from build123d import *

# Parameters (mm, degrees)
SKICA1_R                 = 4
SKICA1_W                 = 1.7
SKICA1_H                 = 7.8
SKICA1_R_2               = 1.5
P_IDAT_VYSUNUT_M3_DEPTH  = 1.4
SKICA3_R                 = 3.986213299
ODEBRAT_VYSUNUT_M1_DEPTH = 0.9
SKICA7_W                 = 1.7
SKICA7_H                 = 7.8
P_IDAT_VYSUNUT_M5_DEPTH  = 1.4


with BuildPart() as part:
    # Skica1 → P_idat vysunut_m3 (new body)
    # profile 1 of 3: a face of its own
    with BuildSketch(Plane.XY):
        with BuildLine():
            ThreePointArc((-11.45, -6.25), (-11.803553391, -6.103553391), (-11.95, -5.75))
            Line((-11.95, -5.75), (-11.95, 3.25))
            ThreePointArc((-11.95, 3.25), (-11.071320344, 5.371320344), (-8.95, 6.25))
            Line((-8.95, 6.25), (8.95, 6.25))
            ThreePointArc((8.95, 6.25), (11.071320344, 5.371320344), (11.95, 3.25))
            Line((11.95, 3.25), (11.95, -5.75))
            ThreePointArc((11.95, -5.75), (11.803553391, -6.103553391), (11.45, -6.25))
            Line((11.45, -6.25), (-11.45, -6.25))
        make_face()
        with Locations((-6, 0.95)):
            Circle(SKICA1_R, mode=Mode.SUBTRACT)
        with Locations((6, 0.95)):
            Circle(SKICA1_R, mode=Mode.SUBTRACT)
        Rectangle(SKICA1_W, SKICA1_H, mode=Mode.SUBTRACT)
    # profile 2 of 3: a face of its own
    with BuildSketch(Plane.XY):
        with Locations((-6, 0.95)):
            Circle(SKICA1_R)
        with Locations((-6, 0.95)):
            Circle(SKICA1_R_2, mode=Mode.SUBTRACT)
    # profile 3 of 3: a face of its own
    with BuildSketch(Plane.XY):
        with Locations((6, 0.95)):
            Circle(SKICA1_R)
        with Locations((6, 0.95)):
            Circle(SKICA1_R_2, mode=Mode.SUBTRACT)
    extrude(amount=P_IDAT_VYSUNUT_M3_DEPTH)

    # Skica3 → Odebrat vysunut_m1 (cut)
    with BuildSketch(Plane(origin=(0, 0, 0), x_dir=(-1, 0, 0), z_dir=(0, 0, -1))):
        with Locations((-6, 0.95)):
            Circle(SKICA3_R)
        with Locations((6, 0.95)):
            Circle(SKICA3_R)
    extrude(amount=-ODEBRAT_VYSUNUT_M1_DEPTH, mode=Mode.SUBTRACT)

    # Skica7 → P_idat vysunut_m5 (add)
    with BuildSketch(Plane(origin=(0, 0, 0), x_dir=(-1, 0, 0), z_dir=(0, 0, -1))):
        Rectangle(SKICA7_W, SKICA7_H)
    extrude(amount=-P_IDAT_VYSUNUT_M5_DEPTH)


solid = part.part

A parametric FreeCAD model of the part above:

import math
import FreeCAD as App
import Part
import Sketcher


def add_polygon(sketch, points):
    """Adds a closed chain of lines whose ends are joined by coincident constraints."""
    first, n = sketch.GeometryCount, len(points)
    for a, b in zip(points, points[1:] + points[:1]):
        sketch.addGeometry(Part.LineSegment(App.Vector(*a, 0), App.Vector(*b, 0)), False)
    for i in range(n):
        sketch.addConstraint(Sketcher.Constraint("Coincident", first + i, 2, first + (i + 1) % n, 1))

doc = App.newDocument("Part")
body = doc.addObject("PartDesign::Body", "Body")

# Sketch on XY plane
sketch1 = doc.addObject("Sketcher::SketchObject", "Sketch")
body.addObject(sketch1)
sketch1.AttachmentSupport = (doc.XY_Plane, [""])
sketch1.MapMode = "FlatFace"
sketch1.addGeometry(Part.ArcOfCircle(Part.Circle(App.Vector(-11.45, -5.75, 0), App.Vector(0, 0, 1), 0.5), math.radians(180), math.radians(270)), False)  # 0
sketch1.addGeometry(Part.LineSegment(App.Vector(-11.45, -6.25, 0), App.Vector(11.45, -6.25, 0)), False)  # 1
sketch1.addGeometry(Part.ArcOfCircle(Part.Circle(App.Vector(11.45, -5.75, 0), App.Vector(0, 0, 1), 0.5), math.radians(-90), math.radians(0)), False)  # 2
sketch1.addGeometry(Part.LineSegment(App.Vector(11.95, -5.75, 0), App.Vector(11.95, 3.25, 0)), False)  # 3
sketch1.addGeometry(Part.ArcOfCircle(Part.Circle(App.Vector(8.95, 3.25, 0), App.Vector(0, 0, 1), 3), math.radians(0), math.radians(90)), False)  # 4
sketch1.addGeometry(Part.LineSegment(App.Vector(8.95, 6.25, 0), App.Vector(-8.95, 6.25, 0)), False)  # 5
sketch1.addGeometry(Part.ArcOfCircle(Part.Circle(App.Vector(-8.95, 3.25, 0), App.Vector(0, 0, 1), 3), math.radians(90), math.radians(180)), False)  # 6
sketch1.addGeometry(Part.LineSegment(App.Vector(-11.95, 3.25, 0), App.Vector(-11.95, -5.75, 0)), False)  # 7
add_polygon(sketch1, [(-0.85, -3.9), (-0.85, 3.9), (0.85, 3.9), (0.85, -3.9)])  # lines 8-11
sketch1.addGeometry(Part.Circle(App.Vector(6, 0.95, 0), App.Vector(0, 0, 1), 1.5), False)  # 12
sketch1.addGeometry(Part.Circle(App.Vector(-6, 0.95, 0), App.Vector(0, 0, 1), 1.5), False)  # 13
sketch1.addConstraint([
    Sketcher.Constraint("Tangent", 0, 2, 1, 1),
    Sketcher.Constraint("Tangent", 1, 2, 2, 1),
    Sketcher.Constraint("Tangent", 2, 2, 3, 1),
    Sketcher.Constraint("Tangent", 3, 2, 4, 1),
    Sketcher.Constraint("Tangent", 4, 2, 5, 1),
    Sketcher.Constraint("Tangent", 5, 2, 6, 1),
    Sketcher.Constraint("Tangent", 6, 2, 7, 1),
    Sketcher.Constraint("Tangent", 7, 2, 0, 1),
    Sketcher.Constraint("Horizontal", 1),
    Sketcher.Constraint("Vertical", 3),
    Sketcher.Constraint("Horizontal", 5),
    Sketcher.Constraint("Vertical", 7),
    Sketcher.Constraint("Vertical", 8),
    Sketcher.Constraint("Horizontal", 9),
    Sketcher.Constraint("Vertical", 10),
    Sketcher.Constraint("Horizontal", 11),
    Sketcher.Constraint("Equal", 0, 2),
    Sketcher.Constraint("Equal", 4, 6),
    Sketcher.Constraint("Equal", 12, 13),
    Sketcher.Constraint("Symmetric", 8, 2, 10, 2, -1, 1),
    Sketcher.Constraint("Symmetric", 12, 3, 13, 3, -2),
    Sketcher.Constraint("Diameter", 12, 3.0),
    Sketcher.Constraint("Radius", 4, 3.0),
    Sketcher.Constraint("Radius", 0, 0.5),
    Sketcher.Constraint("DistanceY", 3, 1, 3, 2, 9.0),
    Sketcher.Constraint("DistanceX", 1, 1, 1, 2, 22.9),
    Sketcher.Constraint("DistanceX", 9, 1, 9, 2, 1.7),
    Sketcher.Constraint("DistanceY", 8, 1, 8, 2, 7.8),
    Sketcher.Constraint("DistanceX", -1, 1, 12, 3, 6.0),
    Sketcher.Constraint("DistanceY", 12, 3, 4, 3, 2.3),
    Sketcher.Constraint("DistanceX", 6, 3, 8, 2, 8.1),
    Sketcher.Constraint("DistanceY", 0, 3, -1, 1, 5.75),
])
pad1 = doc.addObject("PartDesign::Pad", "Pad")
body.addObject(pad1)
pad1.Profile = sketch1
pad1.Length = 1.4

# Sketch on XY plane
sketch2 = doc.addObject("Sketcher::SketchObject", "Sketch001")
body.addObject(sketch2)
sketch2.AttachmentSupport = (doc.XY_Plane, [""])
sketch2.MapMode = "FlatFace"
sketch2.addGeometry([
    Part.Circle(App.Vector(6, 0.95, 0), App.Vector(0, 0, 1), 3.986213),
    Part.Circle(App.Vector(-6, 0.95, 0), App.Vector(0, 0, 1), 3.986213),
], False)
sketch2.addConstraint([
    Sketcher.Constraint("Equal", 0, 1),
    Sketcher.Constraint("Symmetric", 0, 3, 1, 3, -2),
    Sketcher.Constraint("DistanceX", -1, 1, 0, 3, 6.0),
    Sketcher.Constraint("DistanceY", -1, 1, 0, 3, 0.95),
    Sketcher.Constraint("Diameter", 0, 7.972427),
])
pocket1 = doc.addObject("PartDesign::Pocket", "Pocket")
body.addObject(pocket1)
pocket1.Profile = sketch2
pocket1.Length = 0.9
pocket1.Reversed = True

# Sketch on XY plane
sketch3 = doc.addObject("Sketcher::SketchObject", "Sketch002")
body.addObject(sketch3)
sketch3.AttachmentSupport = (doc.XY_Plane, [""])
sketch3.MapMode = "FlatFace"
add_polygon(sketch3, [(0.85, 3.9), (0.85, -3.9), (-0.85, -3.9), (-0.85, 3.9)])  # lines 0-3
sketch3.addConstraint([
    Sketcher.Constraint("Vertical", 0),
    Sketcher.Constraint("Horizontal", 1),
    Sketcher.Constraint("Vertical", 2),
    Sketcher.Constraint("Horizontal", 3),
    Sketcher.Constraint("Symmetric", 0, 2, 2, 2, -1, 1),
    Sketcher.Constraint("DistanceX", 1, 2, 1, 1, 1.7),
    Sketcher.Constraint("DistanceY", 0, 2, 0, 1, 7.8),
])
pad2 = doc.addObject("PartDesign::Pad", "Pad001")
body.addObject(pad2)
pad2.Profile = sketch3
pad2.Length = 1.4

doc.recompute()
